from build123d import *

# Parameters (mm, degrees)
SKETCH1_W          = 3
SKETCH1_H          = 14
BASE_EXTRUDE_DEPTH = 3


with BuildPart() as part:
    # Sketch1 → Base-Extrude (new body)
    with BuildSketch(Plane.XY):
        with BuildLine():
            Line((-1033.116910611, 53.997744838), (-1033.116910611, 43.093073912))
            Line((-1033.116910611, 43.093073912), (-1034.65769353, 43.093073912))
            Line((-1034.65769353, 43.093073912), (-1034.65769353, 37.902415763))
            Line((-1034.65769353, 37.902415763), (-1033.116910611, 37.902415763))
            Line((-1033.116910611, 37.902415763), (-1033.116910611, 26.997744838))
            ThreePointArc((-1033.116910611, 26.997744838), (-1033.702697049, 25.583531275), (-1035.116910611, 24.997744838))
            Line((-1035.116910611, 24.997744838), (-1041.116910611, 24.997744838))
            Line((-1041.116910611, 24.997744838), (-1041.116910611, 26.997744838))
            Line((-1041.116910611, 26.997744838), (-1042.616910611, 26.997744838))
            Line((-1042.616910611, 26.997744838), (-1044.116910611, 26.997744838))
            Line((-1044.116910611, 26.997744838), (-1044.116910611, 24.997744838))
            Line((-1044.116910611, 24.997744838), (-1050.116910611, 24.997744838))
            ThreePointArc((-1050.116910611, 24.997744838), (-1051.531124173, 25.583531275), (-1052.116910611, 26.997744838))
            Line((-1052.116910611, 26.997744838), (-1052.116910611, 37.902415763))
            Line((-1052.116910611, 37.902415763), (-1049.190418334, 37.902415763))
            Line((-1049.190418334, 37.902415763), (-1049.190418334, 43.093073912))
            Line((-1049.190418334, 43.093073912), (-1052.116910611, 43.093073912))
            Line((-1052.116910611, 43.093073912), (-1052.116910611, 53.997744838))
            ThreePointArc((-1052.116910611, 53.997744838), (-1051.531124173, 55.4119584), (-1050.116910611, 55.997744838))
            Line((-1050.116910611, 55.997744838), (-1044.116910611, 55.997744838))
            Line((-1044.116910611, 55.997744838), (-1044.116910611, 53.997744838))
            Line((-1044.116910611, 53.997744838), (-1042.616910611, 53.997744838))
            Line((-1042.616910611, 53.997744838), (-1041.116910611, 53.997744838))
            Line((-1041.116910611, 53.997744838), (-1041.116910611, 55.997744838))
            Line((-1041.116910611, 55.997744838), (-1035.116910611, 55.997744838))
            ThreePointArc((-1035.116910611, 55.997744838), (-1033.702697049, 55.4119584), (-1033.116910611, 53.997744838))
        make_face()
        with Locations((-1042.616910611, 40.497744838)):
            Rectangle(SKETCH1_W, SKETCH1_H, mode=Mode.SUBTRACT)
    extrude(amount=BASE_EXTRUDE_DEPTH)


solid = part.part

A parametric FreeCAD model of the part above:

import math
import FreeCAD as App
import Part
import Sketcher

doc = App.newDocument("Part")
body = doc.addObject("PartDesign::Body", "Body")

sketch1 = doc.addObject("Sketcher::SketchObject", "Sketch")
body.addObject(sketch1)
sketch1.AttachmentSupport = (doc.XY_Plane, [""])
sketch1.MapMode = "FlatFace"
sketch1.addGeometry([
    Part.LineSegment(App.Vector(-1033.1, 43.1, 0), App.Vector(-1033.1, 54, 0)),
    Part.ArcOfCircle(Part.Circle(App.Vector(-1035.1, 54, 0), App.Vector(0, 0, 1), 2), math.radians(0), math.radians(90)),
    Part.LineSegment(App.Vector(-1035.1, 56, 0), App.Vector(-1041.1, 56, 0)),
    Part.LineSegment(App.Vector(-1041.1, 56, 0), App.Vector(-1041.1, 54, 0)),
    Part.LineSegment(App.Vector(-1041.1, 54, 0), App.Vector(-1044.1, 54, 0)),
    Part.LineSegment(App.Vector(-1044.1, 54, 0), App.Vector(-1044.1, 56, 0)),
    Part.LineSegment(App.Vector(-1044.1, 56, 0), App.Vector(-1050.1, 56, 0)),
    Part.ArcOfCircle(Part.Circle(App.Vector(-1050.1, 54, 0), App.Vector(0, 0, 1), 2), math.radians(90), math.radians(180)),
    Part.LineSegment(App.Vector(-1052.1, 54, 0), App.Vector(-1052.1, 43.1, 0)),
    Part.LineSegment(App.Vector(-1052.1, 43.1, 0), App.Vector(-1049.2, 43.1, 0)),
    Part.LineSegment(App.Vector(-1049.2, 43.1, 0), App.Vector(-1049.2, 37.9, 0)),
    Part.LineSegment(App.Vector(-1049.2, 37.9, 0), App.Vector(-1052.1, 37.9, 0)),
    Part.LineSegment(App.Vector(-1052.1, 37.9, 0), App.Vector(-1052.1, 27, 0)),
    Part.ArcOfCircle(Part.Circle(App.Vector(-1050.1, 27, 0), App.Vector(0, 0, 1), 2), math.radians(180), math.radians(270)),
    Part.LineSegment(App.Vector(-1050.1, 25, 0), App.Vector(-1044.1, 25, 0)),
    Part.LineSegment(App.Vector(-1044.1, 25, 0), App.Vector(-1044.1, 27, 0)),
    Part.LineSegment(App.Vector(-1044.1, 27, 0), App.Vector(-1041.1, 27, 0)),
    Part.LineSegment(App.Vector(-1041.1, 27, 0), App.Vector(-1041.1, 25, 0)),
    Part.LineSegment(App.Vector(-1041.1, 25, 0), App.Vector(-1035.1, 25, 0)),
    Part.ArcOfCircle(Part.Circle(App.Vector(-1035.1, 27, 0), App.Vector(0, 0, 1), 2), math.radians(-90), math.radians(0)),
    Part.LineSegment(App.Vector(-1033.1, 27, 0), App.Vector(-1033.1, 37.9, 0)),
    Part.LineSegment(App.Vector(-1033.1, 37.9, 0), App.Vector(-1034.7, 37.9, 0)),
    Part.LineSegment(App.Vector(-1034.7, 37.9, 0), App.Vector(-1034.7, 43.1, 0)),
    Part.LineSegment(App.Vector(-1034.7, 43.1, 0), App.Vector(-1033.1, 43.1, 0)),
    Part.LineSegment(App.Vector(-1044.1, 33.5, 0), App.Vector(-1044.1, 47.5, 0)),
    Part.LineSegment(App.Vector(-1044.1, 47.5, 0), App.Vector(-1041.1, 47.5, 0)),
    Part.LineSegment(App.Vector(-1041.1, 47.5, 0), App.Vector(-1041.1, 33.5, 0)),
    Part.LineSegment(App.Vector(-1041.1, 33.5, 0), App.Vector(-1044.1, 33.5, 0)),
], False)
sketch1.addConstraint([
    Sketcher.Constraint("Tangent", 0, 2, 1, 1),
    Sketcher.Constraint("Tangent", 1, 2, 2, 1),
    Sketcher.Constraint("Coincident", 2, 2, 3, 1),
    Sketcher.Constraint("Coincident", 3, 2, 4, 1),
    Sketcher.Constraint("Coincident", 4, 2, 5, 1),
    Sketcher.Constraint("Coincident", 5, 2, 6, 1),
    Sketcher.Constraint("Tangent", 6, 2, 7, 1),
    Sketcher.Constraint("Tangent", 7, 2, 8, 1),
    Sketcher.Constraint("Coincident", 8, 2, 9, 1),
    Sketcher.Constraint("Coincident", 9, 2, 10, 1),
    Sketcher.Constraint("Coincident", 10, 2, 11, 1),
    Sketcher.Constraint("Coincident", 11, 2, 12, 1),
    Sketcher.Constraint("Tangent", 12, 2, 13, 1),
    Sketcher.Constraint("Tangent", 13, 2, 14, 1),
    Sketcher.Constraint("Coincident", 14, 2, 15, 1),
    Sketcher.Constraint("Coincident", 15, 2, 16, 1),
    Sketcher.Constraint("Coincident", 16, 2, 17, 1),
    Sketcher.Constraint("Coincident", 17, 2, 18, 1),
    Sketcher.Constraint("Tangent", 18, 2, 19, 1),
    Sketcher.Constraint("Tangent", 19, 2, 20, 1),
    Sketcher.Constraint("Coincident", 20, 2, 21, 1),
    Sketcher.Constraint("Coincident", 21, 2, 22, 1),
    Sketcher.Constraint("Coincident", 22, 2, 23, 1),
    Sketcher.Constraint("Coincident", 23, 2, 0, 1),
    Sketcher.Constraint("Coincident", 24, 2, 25, 1),
    Sketcher.Constraint("Coincident", 25, 2, 26, 1),
    Sketcher.Constraint("Coincident", 26, 2, 27, 1),
    Sketcher.Constraint("Coincident", 27, 2, 24, 1),
    Sketcher.Constraint("Vertical", 0),
    Sketcher.Constraint("Horizontal", 2),
    Sketcher.Constraint("Vertical", 3),
    Sketcher.Constraint("Horizontal", 4),
    Sketcher.Constraint("Vertical", 5),
    Sketcher.Constraint("Horizontal", 6),
    Sketcher.Constraint("Vertical", 8),
    Sketcher.Constraint("Horizontal", 9),
    Sketcher.Constraint("Vertical", 10),
    Sketcher.Constraint("Horizontal", 11),
    Sketcher.Constraint("Vertical", 12),
    Sketcher.Constraint("Horizontal", 14),
    Sketcher.Constraint("Vertical", 15),
    Sketcher.Constraint("Horizontal", 16),
    Sketcher.Constraint("Vertical", 17),
    Sketcher.Constraint("Horizontal", 18),
    Sketcher.Constraint("Vertical", 20),
    Sketcher.Constraint("Horizontal", 21),
    Sketcher.Constraint("Vertical", 22),
    Sketcher.Constraint("Horizontal", 23),
    Sketcher.Constraint("Vertical", 24),
    Sketcher.Constraint("Horizontal", 25),
    Sketcher.Constraint("Vertical", 26),
    Sketcher.Constraint("Horizontal", 27),
    Sketcher.Constraint("Equal", 1, 7),
    Sketcher.Constraint("Equal", 7, 13),
    Sketcher.Constraint("Equal", 13, 19),
    Sketcher.Constraint("Horizontal", 1, 3, 7, 3),
    Sketcher.Constraint("Horizontal", 13, 3, 19, 3),
    Sketcher.Constraint("Horizontal", 0, 2, 3, 2),
    Sketcher.Constraint("Horizontal", 12, 2, 15, 2),
    Sketcher.Constraint("Horizontal", 11, 2, 20, 2),
    Sketcher.Constraint("Horizontal", 9, 2, 22, 2),
    Sketcher.Constraint("Vertical", 7, 3, 13, 3),
    Sketcher.Constraint("Vertical", 1, 3, 19, 3),
    Sketcher.Constraint("Vertical", 5, 2, 14, 2),
    Sketcher.Constraint("Vertical", 3, 2, 16, 2),
    Sketcher.Constraint("Vertical", 15, 2, 24, 2),
    Sketcher.Constraint("Vertical", 17, 2, 25, 2),
    Sketcher.Constraint("Equal", 2, 6),
    Sketcher.Constraint("Equal", 8, 12),
    Sketcher.Constraint("Radius", 1, 2.0),
    Sketcher.Constraint("DistanceX", 2, 2, 2, 1, 6.0),
    Sketcher.Constraint("DistanceX", 4, 2, 4, 1, 3.0),
    Sketcher.Constraint("DistanceY", 24, 1, 24, 2, 14.0),
    Sketcher.Constraint("DistanceY", 13, 3, 7, 3, 27.0),
    Sketcher.Constraint("DistanceY", 24, 2, 4, 2, 6.5),
    Sketcher.Constraint("DistanceY", 0, 1, 0, 2, 10.904671),
    Sketcher.Constraint("DistanceX", 9, 1, 9, 2, 2.926492),
    Sketcher.Constraint("DistanceX", 21, 2, 21, 1, 1.540783),
    Sketcher.Constraint("DistanceX", 1, 3, -1, 1, 1035.116911),
    Sketcher.Constraint("DistanceY", -1, 1, 1, 3, 53.997745),
])
pad1 = doc.addObject("PartDesign::Pad", "Pad")
body.addObject(pad1)
pad1.Profile = sketch1
pad1.Length = 3

doc.recompute()
